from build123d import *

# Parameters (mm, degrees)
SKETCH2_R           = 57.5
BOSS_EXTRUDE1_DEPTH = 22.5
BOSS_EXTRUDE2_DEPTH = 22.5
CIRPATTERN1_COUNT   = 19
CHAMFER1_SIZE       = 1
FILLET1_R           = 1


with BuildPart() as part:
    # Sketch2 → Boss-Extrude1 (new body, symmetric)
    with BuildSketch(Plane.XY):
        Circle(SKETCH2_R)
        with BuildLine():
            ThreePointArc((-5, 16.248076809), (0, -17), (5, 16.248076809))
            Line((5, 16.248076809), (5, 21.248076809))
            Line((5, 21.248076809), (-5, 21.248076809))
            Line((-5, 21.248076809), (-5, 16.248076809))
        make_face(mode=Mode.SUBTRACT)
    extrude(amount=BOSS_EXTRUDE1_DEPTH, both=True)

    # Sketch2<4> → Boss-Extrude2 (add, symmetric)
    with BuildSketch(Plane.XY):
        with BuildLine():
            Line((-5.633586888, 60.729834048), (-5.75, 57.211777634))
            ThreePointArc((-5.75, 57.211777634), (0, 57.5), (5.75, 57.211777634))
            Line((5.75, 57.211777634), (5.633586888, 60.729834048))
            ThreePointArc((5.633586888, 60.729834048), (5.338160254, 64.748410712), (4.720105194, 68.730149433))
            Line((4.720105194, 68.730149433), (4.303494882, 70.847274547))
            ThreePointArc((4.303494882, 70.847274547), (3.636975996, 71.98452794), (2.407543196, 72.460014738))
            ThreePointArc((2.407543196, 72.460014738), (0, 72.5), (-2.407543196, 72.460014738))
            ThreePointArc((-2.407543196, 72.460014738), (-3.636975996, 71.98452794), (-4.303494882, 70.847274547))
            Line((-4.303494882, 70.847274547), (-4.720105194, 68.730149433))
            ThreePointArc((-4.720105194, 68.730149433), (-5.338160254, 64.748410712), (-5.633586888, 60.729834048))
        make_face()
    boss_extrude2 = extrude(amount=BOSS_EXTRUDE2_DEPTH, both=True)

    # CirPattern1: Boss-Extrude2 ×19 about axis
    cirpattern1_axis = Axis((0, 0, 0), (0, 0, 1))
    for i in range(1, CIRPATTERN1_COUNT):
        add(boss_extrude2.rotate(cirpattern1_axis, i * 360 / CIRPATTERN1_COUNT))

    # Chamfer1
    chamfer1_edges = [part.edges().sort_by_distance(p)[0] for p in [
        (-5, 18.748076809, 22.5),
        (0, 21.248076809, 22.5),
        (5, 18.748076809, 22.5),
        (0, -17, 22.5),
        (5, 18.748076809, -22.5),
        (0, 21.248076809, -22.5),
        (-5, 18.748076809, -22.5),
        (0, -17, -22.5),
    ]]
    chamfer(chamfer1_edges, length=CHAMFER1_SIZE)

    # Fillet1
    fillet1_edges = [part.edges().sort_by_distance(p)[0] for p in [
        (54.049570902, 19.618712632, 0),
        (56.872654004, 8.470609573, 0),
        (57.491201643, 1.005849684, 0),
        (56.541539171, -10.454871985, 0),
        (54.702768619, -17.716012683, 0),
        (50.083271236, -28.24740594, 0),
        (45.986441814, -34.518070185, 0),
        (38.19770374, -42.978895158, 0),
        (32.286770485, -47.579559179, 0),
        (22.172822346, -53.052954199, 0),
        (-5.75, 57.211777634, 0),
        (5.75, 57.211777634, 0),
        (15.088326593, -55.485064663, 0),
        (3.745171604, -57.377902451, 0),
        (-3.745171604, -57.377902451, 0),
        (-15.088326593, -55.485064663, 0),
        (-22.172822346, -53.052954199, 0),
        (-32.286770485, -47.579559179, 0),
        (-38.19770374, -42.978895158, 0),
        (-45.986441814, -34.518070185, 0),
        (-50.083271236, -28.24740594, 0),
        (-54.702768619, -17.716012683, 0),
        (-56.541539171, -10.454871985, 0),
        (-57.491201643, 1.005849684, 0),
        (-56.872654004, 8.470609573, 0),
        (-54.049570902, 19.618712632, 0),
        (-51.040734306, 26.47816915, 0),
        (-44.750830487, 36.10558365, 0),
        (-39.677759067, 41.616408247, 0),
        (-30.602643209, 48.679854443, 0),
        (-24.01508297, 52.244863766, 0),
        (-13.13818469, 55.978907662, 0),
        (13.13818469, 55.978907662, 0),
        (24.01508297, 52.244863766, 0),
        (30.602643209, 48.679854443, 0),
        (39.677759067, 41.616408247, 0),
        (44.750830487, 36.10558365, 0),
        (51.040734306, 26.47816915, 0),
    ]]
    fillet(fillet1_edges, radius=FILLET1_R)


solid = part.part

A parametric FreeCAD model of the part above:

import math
import FreeCAD as App
import Part
import Sketcher
Q = App.Units.Quantity


def edges_at(feature, points):
    """Names of the edges that pass closest to the given points."""
    edges = feature.Shape.Edges
    near = lambda p: min(range(len(edges)), key=lambda i: edges[i].distToShape(Part.Vertex(*p))[0])
    return sorted({f"Edge{near(p) + 1}" for p in points})

doc = App.newDocument("Part")
body = doc.addObject("PartDesign::Body", "Body")

sketch1 = body.newObject("Sketcher::SketchObject", "Sketch")
sketch1.AttachmentSupport = (doc.getObject("XY_Plane"), [""])
sketch1.MapMode = "FlatFace"
sketch1.addGeometry([
    Part.Circle(App.Vector(0, 0, 0), App.Vector(0, 0, 1), 58),
    Part.ArcOfCircle(Part.Circle(App.Vector(0, 0, 0), App.Vector(0, 0, 1), 17), math.radians(107), math.radians(433)),
    Part.LineSegment(App.Vector(-5, 16, 0), App.Vector(-5, 21, 0)),
    Part.LineSegment(App.Vector(-5, 21, 0), App.Vector(5, 21, 0)),
    Part.LineSegment(App.Vector(5, 21, 0), App.Vector(5, 16, 0)),
], False)
sketch1.addConstraint([
    Sketcher.Constraint("Coincident", 1, 1, 2, 1),
    Sketcher.Constraint("Coincident", 2, 2, 3, 1),
    Sketcher.Constraint("Coincident", 3, 2, 4, 1),
    Sketcher.Constraint("Coincident", 4, 2, 1, 2),
    Sketcher.Constraint("Vertical", 2),
    Sketcher.Constraint("Horizontal", 3),
    Sketcher.Constraint("Vertical", 4),
    Sketcher.Constraint("Coincident", 0, 3, -1, 1),
    Sketcher.Constraint("Coincident", 1, 3, -1, 1),
    Sketcher.Constraint("Horizontal", 1, 1, 4, 2),
    Sketcher.Constraint("Diameter", 0, Q("115 mm")),
    Sketcher.Constraint("Radius", 1, Q("17 mm")),
    Sketcher.Constraint("DistanceX", 3, 1, 3, 2, Q("10 mm")),
    Sketcher.Constraint("DistanceY", 2, 1, 2, 2, Q("5 mm")),
])
pad1 = body.newObject("PartDesign::Pad", "Pad")
pad1.Profile = sketch1
pad1.Length = 45
pad1.Midplane = True

sketch2 = body.newObject("Sketcher::SketchObject", "Sketch001")
sketch2.AttachmentSupport = (doc.getObject("XY_Plane"), [""])
sketch2.MapMode = "FlatFace"
sketch2.addGeometry([
    Part.LineSegment(App.Vector(-5.633587, 60.729834, 0), App.Vector(-5.75, 57.211778, 0)),
    Part.ArcOfCircle(Part.Circle(App.Vector(0, 0, 0), App.Vector(0, 0, 1), 57.5), math.radians(84.26083), math.radians(95.73917)),
    Part.LineSegment(App.Vector(5.75, 57.211778, 0), App.Vector(5.633587, 60.729834, 0)),
    Part.ArcOfCircle(Part.Circle(App.Vector(-44.339061, 59.07623, 0), App.Vector(0, 0, 1), 50), math.radians(1.895236), math.radians(11.13249)),
    Part.LineSegment(App.Vector(4.720105, 68.730149, 0), App.Vector(4.303495, 70.847275, 0)),
    Part.ArcOfCircle(Part.Circle(App.Vector(2.341128, 70.461118, 0), App.Vector(0, 0, 1), 2), math.radians(11.13249), math.radians(88.097001)),
    Part.ArcOfCircle(Part.Circle(App.Vector(0, -0.000001, 0), App.Vector(0, 0, 1), 72.500001), math.radians(88.097001), math.radians(91.902999)),
    Part.ArcOfCircle(Part.Circle(App.Vector(-2.341128, 70.461118, 0), App.Vector(0, 0, 1), 2), math.radians(91.902999), math.radians(168.86751)),
    Part.LineSegment(App.Vector(-4.303495, 70.847275, 0), App.Vector(-4.720105, 68.730149, 0)),
    Part.ArcOfCircle(Part.Circle(App.Vector(44.339061, 59.07623, 0), App.Vector(0, 0, 1), 50), math.radians(168.86751), math.radians(178.104764)),
], False)
sketch2.addConstraint([
    Sketcher.Constraint("Coincident", 0, 2, 1, 2),
    Sketcher.Constraint("Coincident", 1, 1, 2, 1),
    Sketcher.Constraint("Coincident", 2, 2, 3, 1),
    Sketcher.Constraint("Coincident", 3, 2, 4, 1),
    Sketcher.Constraint("Coincident", 4, 2, 5, 1),
    Sketcher.Constraint("Coincident", 5, 2, 6, 1),
    Sketcher.Constraint("Coincident", 6, 2, 7, 1),
    Sketcher.Constraint("Coincident", 7, 2, 8, 1),
    Sketcher.Constraint("Coincident", 8, 2, 9, 1),
    Sketcher.Constraint("Coincident", 9, 2, 0, 1),
    Sketcher.Constraint("Coincident", 1, 3, -1, 1),
    Sketcher.Constraint("Coincident", 6, 3, -1, 1),
    Sketcher.Constraint("Radius", 3, Q("50 mm")),
    Sketcher.Constraint("Radius", 5, Q("2 mm")),
    Sketcher.Constraint("Radius", 7, Q("2 mm")),
    Sketcher.Constraint("Radius", 9, Q("50 mm")),
    Sketcher.Constraint("Radius", 1, Q("57.5 mm")),
    Sketcher.Constraint("Radius", 6, Q("72.500001 mm")),
    Sketcher.Constraint("DistanceX", 0, 2, 1, 1, Q("11.5 mm")),
    Sketcher.Constraint("DistanceX", 0, 2, -1, 1, Q("5.75 mm")),
    Sketcher.Constraint("Distance", 0, Q("3.519982 mm")),
    Sketcher.Constraint("Distance", 2, Q("3.519982 mm")),
    Sketcher.Constraint("DistanceX", 3, 3, -1, 1, Q("44.339061 mm")),
    Sketcher.Constraint("DistanceY", -1, 1, 3, 3, Q("59.07623 mm")),
    Sketcher.Constraint("DistanceX", -1, 1, 5, 3, Q("2.341128 mm")),
    Sketcher.Constraint("DistanceX", 7, 3, -1, 1, Q("2.341128 mm")),
    Sketcher.Constraint("DistanceX", -1, 1, 9, 3, Q("44.339061 mm")),
    Sketcher.Constraint("DistanceY", -1, 1, 9, 3, Q("59.07623 mm")),
    Sketcher.Constraint("DistanceY", -1, 1, 3, 2, Q("68.730149 mm")),
    Sketcher.Constraint("DistanceY", -1, 1, 8, 2, Q("68.730149 mm")),
    Sketcher.Constraint("DistanceX", 4, 2, 3, 2, Q("0.41661 mm")),
    Sketcher.Constraint("DistanceX", 5, 2, 4, 2, Q("1.895952 mm")),
    Sketcher.Constraint("DistanceX", 6, 2, 5, 3, Q("4.748671 mm")),
    Sketcher.Constraint("DistanceX", 7, 2, 6, 2, Q("1.895952 mm")),
])
pad2 = body.newObject("PartDesign::Pad", "Pad001")
pad2.Profile = sketch2
pad2.Length = 45
pad2.Midplane = True
doc.recompute()

polarpattern = body.newObject("PartDesign::PolarPattern", "PolarPattern")
polarpattern.Originals = [pad2]
polarpattern.Axis = (doc.getObject("Z_Axis"), [""])
polarpattern.Angle = 360
polarpattern.Occurrences = 19
body.Tip = polarpattern
doc.recompute()

chamfer = body.newObject("PartDesign::Chamfer", "Chamfer")
chamfer.Base = (polarpattern, edges_at(polarpattern, [
    (-5, 18.748, 22.5),
    (0, 21.248, 22.5),
    (5, 18.748, 22.5),
    (0, -17, 22.5),
    (5, 18.748, -22.5),
    (0, 21.248, -22.5),
    (-5, 18.748, -22.5),
    (0, -17, -22.5),
]))
chamfer.Size = 1
doc.recompute()

fillet = body.newObject("PartDesign::Fillet", "Fillet")
fillet.Base = (chamfer, edges_at(chamfer, [
    (54.05, 19.619, 0),
    (56.873, 8.471, 0),
    (57.491, 1.006, 0),
    (56.542, -10.455, 0),
    (54.703, -17.716, 0),
    (50.083, -28.247, 0),
    (45.986, -34.518, 0),
    (38.198, -42.979, 0),
    (32.287, -47.58, 0),
    (22.173, -53.053, 0),
    (-5.75, 57.212, 0),
    (5.75, 57.212, 0),
    (15.088, -55.485, 0),
    (3.745, -57.378, 0),
    (-3.745, -57.378, 0),
    (-15.088, -55.485, 0),
    (-22.173, -53.053, 0),
    (-32.287, -47.58, 0),
    (-38.198, -42.979, 0),
    (-45.986, -34.518, 0),
    (-50.083, -28.247, 0),
    (-54.703, -17.716, 0),
    (-56.542, -10.455, 0),
    (-57.491, 1.006, 0),
    (-56.873, 8.471, 0),
    (-54.05, 19.619, 0),
    (-51.041, 26.478, 0),
    (-44.751, 36.106, 0),
    (-39.678, 41.616, 0),
    (-30.603, 48.68, 0),
    (-24.015, 52.245, 0),
    (-13.138, 55.979, 0),
    (13.138, 55.979, 0),
    (24.015, 52.245, 0),
    (30.603, 48.68, 0),
    (39.678, 41.616, 0),
    (44.751, 36.106, 0),
    (51.041, 26.478, 0),
]))
fillet.Radius = 1

doc.recompute()
